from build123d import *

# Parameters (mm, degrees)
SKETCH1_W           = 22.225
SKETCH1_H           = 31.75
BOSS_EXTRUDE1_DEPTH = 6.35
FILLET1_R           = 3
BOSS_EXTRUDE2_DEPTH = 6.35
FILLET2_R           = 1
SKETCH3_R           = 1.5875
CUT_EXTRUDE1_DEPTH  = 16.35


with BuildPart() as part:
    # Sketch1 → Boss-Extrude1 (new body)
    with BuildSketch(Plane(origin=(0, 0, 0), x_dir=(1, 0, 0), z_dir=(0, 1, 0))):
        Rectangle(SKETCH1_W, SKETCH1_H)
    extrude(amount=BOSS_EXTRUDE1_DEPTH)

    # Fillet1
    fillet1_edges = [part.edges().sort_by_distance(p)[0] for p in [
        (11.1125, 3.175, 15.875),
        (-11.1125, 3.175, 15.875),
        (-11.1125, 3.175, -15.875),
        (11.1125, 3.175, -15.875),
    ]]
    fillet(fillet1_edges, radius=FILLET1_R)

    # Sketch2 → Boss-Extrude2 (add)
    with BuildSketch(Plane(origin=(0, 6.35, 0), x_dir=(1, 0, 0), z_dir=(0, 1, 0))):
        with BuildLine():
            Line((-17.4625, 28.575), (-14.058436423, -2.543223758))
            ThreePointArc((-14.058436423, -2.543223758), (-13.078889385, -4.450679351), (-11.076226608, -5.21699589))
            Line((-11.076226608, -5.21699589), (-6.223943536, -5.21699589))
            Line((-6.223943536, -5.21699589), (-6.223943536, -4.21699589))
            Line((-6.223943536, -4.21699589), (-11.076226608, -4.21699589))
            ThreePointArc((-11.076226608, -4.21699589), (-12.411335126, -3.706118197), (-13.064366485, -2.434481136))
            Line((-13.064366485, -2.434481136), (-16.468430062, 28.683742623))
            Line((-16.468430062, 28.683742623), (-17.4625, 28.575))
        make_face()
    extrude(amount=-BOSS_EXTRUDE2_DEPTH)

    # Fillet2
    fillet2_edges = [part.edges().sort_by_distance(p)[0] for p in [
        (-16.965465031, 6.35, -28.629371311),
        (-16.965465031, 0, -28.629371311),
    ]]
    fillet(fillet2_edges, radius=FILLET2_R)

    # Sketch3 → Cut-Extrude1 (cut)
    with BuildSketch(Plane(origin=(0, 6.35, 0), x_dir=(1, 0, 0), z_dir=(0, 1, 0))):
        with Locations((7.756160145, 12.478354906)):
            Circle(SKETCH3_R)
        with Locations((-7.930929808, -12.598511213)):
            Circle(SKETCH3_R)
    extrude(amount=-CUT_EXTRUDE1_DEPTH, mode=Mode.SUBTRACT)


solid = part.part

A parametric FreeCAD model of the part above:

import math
import FreeCAD as App
import Part
import Sketcher
from FreeCAD import Vector
Q = App.Units.Quantity


def edges_at(feature, points):
    """Names of the edges that pass closest to the given points."""
    edges = feature.Shape.Edges
    near = lambda p: min(range(len(edges)), key=lambda i: edges[i].distToShape(Part.Vertex(*p))[0])
    return sorted({f"Edge{near(p) + 1}" for p in points})


def add_polygon(sketch, points):
    """Adds a closed chain of lines whose ends are joined by coincident constraints."""
    first, n = sketch.GeometryCount, len(points)
    for a, b in zip(points, points[1:] + points[:1]):
        sketch.addGeometry(Part.LineSegment(App.Vector(*a, 0), App.Vector(*b, 0)), False)
    for i in range(n):
        sketch.addConstraint(Sketcher.Constraint("Coincident", first + i, 2, first + (i + 1) % n, 1))

doc = App.newDocument("Part")
body = doc.addObject("PartDesign::Body", "Body")

sketch1 = body.newObject("Sketcher::SketchObject", "Sketch")
sketch1.AttachmentSupport = (doc.getObject("XZ_Plane"), [""])
sketch1.MapMode = "FlatFace"
add_polygon(sketch1, [(-11, -16), (-11, 16), (11, 16), (11, -16)])
sketch1.addConstraint([
    Sketcher.Constraint("Vertical", 0),
    Sketcher.Constraint("Horizontal", 1),
    Sketcher.Constraint("Vertical", 2),
    Sketcher.Constraint("Horizontal", 3),
    Sketcher.Constraint("Symmetric", 0, 2, 2, 2, -1, 1),
    Sketcher.Constraint("DistanceY", 0, 1, 0, 2, Q("31.75 mm")),
    Sketcher.Constraint("DistanceX", 1, 1, 1, 2, Q("22.225 mm")),
])
pad1 = body.newObject("PartDesign::Pad", "Pad")
pad1.Profile = sketch1
pad1.Length = 6.35
pad1.Reversed = True
doc.recompute()

fillet = body.newObject("PartDesign::Fillet", "Fillet")
fillet.Base = (pad1, edges_at(pad1, [
    (11.113, 3.175, 15.875),
    (-11.113, 3.175, 15.875),
    (-11.113, 3.175, -15.875),
    (11.113, 3.175, -15.875),
]))
fillet.Radius = 3

sketch2 = body.newObject("Sketcher::SketchObject", "Sketch001")
sketch2.AttachmentSupport = (doc.getObject("XZ_Plane"), [""])
sketch2.MapMode = "FlatFace"
sketch2.AttachmentOffset = App.Placement(Vector(0, 0, -6.35), App.Rotation())
sketch2.addGeometry([
    Part.LineSegment(Vector(-17.5, -28.6, 0), Vector(-14.1, 2.5, 0)),
    Part.ArcOfCircle(Part.Circle(Vector(-11.1, 2.2, 0), Vector(0, 0, 1), 3), math.radians(90), math.radians(174)),
    Part.LineSegment(Vector(-11.1, 5.2, 0), Vector(-6.2, 5.2, 0)),
    Part.LineSegment(Vector(-6.2, 5.2, 0), Vector(-6.2, 4.2, 0)),
    Part.LineSegment(Vector(-6.2, 4.2, 0), Vector(-11.1, 4.2, 0)),
    Part.ArcOfCircle(Part.Circle(Vector(-11.1, 2.2, 0), Vector(0, 0, 1), 2), math.radians(90), math.radians(174)),
    Part.LineSegment(Vector(-13.1, 2.4, 0), Vector(-16.5, -28.7, 0)),
    Part.LineSegment(Vector(-16.5, -28.7, 0), Vector(-17.5, -28.6, 0)),
], False)
sketch2.addConstraint([
    Sketcher.Constraint("Tangent", 0, 2, 1, 2),
    Sketcher.Constraint("Tangent", 1, 1, 2, 1),
    Sketcher.Constraint("Coincident", 2, 2, 3, 1),
    Sketcher.Constraint("Coincident", 3, 2, 4, 1),
    Sketcher.Constraint("Tangent", 4, 2, 5, 1),
    Sketcher.Constraint("Tangent", 5, 2, 6, 1),
    Sketcher.Constraint("Coincident", 6, 2, 7, 1),
    Sketcher.Constraint("Coincident", 7, 2, 0, 1),
    Sketcher.Constraint("Horizontal", 2),
    Sketcher.Constraint("Vertical", 3),
    Sketcher.Constraint("Horizontal", 4),
    Sketcher.Constraint("Coincident", 5, 3, 1, 3),
    Sketcher.Constraint("Parallel", 0, 6),
    Sketcher.Constraint("Perpendicular", 6, 7),
    Sketcher.Constraint("Radius", 1, Q("3 mm")),
    Sketcher.Constraint("Radius", 5, Q("2 mm")),
    Sketcher.Constraint("DistanceY", 7, 2, -1, 1, Q("28.575 mm")),
    Sketcher.Constraint("DistanceX", 7, 2, -1, 1, Q("17.4625 mm")),
    Sketcher.Constraint("DistanceX", 2, 1, 2, 2, Q("4.852283 mm")),
    Sketcher.Constraint("DistanceY", -1, 1, 5, 2, Q("2.434481 mm")),
    Sketcher.Constraint("DistanceX", 0, 2, 1, 3, Q("2.98221 mm")),
])
pad2 = body.newObject("PartDesign::Pad", "Pad001")
pad2.Profile = sketch2
pad2.Length = 6.35
doc.recompute()

fillet2 = body.newObject("PartDesign::Fillet", "Fillet001")
fillet2.Base = (pad2, edges_at(pad2, [(-16.965, 6.35, -28.629), (-16.965, 0, -28.629)]))
fillet2.Radius = 1

sketch3 = body.newObject("Sketcher::SketchObject", "Sketch002")
sketch3.AttachmentSupport = (doc.getObject("XZ_Plane"), [""])
sketch3.MapMode = "FlatFace"
sketch3.AttachmentOffset = App.Placement(Vector(0, 0, -6.35), App.Rotation())
sketch3.addGeometry([
    Part.Circle(Vector(7.8, -12.5, 0), Vector(0, 0, 1), 1.6),
    Part.Circle(Vector(-7.9, 12.6, 0), Vector(0, 0, 1), 1.6),
], False)
sketch3.addConstraint([
    Sketcher.Constraint("Equal", 0, 1),
    Sketcher.Constraint("Diameter", 0, Q("3.175 mm")),
    Sketcher.Constraint("DistanceX", -1, 1, 0, 3, Q("7.75616 mm")),
    Sketcher.Constraint("DistanceX", 1, 3, -1, 1, Q("7.93093 mm")),
    Sketcher.Constraint("DistanceY", -1, 1, 1, 3, Q("12.598511 mm")),
    Sketcher.Constraint("DistanceY", 0, 3, -1, 1, Q("12.478355 mm")),
])
pocket1 = body.newObject("PartDesign::Pocket", "Pocket")
pocket1.Profile = sketch3
pocket1.Length = 16.35
pocket1.Reversed = True

doc.recompute()
